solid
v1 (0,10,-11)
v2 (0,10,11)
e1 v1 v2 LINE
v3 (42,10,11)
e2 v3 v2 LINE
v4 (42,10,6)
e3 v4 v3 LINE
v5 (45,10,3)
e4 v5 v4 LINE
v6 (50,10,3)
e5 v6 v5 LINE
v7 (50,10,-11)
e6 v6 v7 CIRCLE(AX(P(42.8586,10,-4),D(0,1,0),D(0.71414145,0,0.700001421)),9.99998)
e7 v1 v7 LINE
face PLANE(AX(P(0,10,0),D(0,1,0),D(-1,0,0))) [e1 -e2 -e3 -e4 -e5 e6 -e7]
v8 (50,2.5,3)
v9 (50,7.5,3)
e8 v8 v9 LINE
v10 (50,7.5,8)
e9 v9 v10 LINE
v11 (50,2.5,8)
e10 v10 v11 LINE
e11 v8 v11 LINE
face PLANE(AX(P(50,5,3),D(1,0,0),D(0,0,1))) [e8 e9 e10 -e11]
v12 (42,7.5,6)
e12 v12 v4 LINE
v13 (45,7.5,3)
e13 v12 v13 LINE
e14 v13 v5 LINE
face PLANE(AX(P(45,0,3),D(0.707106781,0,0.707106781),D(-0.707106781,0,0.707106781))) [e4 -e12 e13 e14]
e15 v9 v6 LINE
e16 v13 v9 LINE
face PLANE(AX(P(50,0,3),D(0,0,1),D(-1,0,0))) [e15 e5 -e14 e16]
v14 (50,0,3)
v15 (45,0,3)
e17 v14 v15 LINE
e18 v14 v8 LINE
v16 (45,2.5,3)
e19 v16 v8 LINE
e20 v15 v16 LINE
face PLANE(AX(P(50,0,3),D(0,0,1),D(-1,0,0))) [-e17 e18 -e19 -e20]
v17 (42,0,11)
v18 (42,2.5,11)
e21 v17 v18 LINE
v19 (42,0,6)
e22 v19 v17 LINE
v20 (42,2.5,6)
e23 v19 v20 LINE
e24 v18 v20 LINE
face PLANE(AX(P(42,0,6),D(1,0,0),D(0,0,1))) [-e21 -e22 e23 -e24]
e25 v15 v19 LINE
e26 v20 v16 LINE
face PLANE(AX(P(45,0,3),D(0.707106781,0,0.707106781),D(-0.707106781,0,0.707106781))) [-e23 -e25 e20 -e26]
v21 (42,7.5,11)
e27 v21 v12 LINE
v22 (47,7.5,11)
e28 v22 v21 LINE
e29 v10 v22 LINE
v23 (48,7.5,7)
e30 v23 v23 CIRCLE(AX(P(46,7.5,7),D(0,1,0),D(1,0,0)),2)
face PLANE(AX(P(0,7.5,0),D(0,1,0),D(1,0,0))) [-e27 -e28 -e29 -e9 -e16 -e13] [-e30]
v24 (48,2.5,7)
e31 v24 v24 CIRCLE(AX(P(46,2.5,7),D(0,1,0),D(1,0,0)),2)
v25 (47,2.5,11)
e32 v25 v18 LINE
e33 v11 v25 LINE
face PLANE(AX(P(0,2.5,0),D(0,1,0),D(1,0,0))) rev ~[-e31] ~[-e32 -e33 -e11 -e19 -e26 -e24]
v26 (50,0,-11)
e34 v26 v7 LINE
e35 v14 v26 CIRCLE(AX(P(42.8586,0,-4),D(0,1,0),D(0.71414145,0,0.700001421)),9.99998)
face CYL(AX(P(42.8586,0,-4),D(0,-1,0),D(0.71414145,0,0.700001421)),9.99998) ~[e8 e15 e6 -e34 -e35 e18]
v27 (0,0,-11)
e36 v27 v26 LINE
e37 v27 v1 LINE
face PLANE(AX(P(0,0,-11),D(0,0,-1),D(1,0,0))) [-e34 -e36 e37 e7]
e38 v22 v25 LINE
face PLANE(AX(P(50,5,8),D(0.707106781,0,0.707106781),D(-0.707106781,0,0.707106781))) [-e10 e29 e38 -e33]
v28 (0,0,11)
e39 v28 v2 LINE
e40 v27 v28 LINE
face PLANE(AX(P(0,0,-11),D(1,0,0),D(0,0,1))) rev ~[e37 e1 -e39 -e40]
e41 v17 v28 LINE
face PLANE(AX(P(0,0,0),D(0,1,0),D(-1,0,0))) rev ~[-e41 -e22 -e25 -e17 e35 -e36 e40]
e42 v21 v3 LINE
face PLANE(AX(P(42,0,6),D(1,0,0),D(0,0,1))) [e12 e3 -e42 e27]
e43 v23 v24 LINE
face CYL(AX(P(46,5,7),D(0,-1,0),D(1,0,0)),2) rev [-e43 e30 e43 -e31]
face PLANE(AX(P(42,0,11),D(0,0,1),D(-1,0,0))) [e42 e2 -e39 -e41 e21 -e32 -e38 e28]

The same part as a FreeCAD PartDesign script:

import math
import FreeCAD as App
import Part
import Sketcher
from FreeCAD import Vector
Q = App.Units.Quantity


def add_polygon(sketch, points):
    """Adds a closed chain of lines whose ends are joined by coincident constraints."""
    first, n = sketch.GeometryCount, len(points)
    for a, b in zip(points, points[1:] + points[:1]):
        sketch.addGeometry(Part.LineSegment(App.Vector(*a, 0), App.Vector(*b, 0)), False)
    for i in range(n):
        sketch.addConstraint(Sketcher.Constraint("Coincident", first + i, 2, first + (i + 1) % n, 1))

doc = App.newDocument("Part")
body = doc.addObject("PartDesign::Body", "Body")

# Sketch on XZ plane
sketch1 = body.newObject("Sketcher::SketchObject", "Sketch")
sketch1.AttachmentSupport = (doc.getObject("XZ_Plane"), [""])
sketch1.MapMode = "FlatFace"
sketch1.addGeometry(Part.LineSegment(Vector(50, -11, 0), Vector(0, -11, 0)), False)
sketch1.addGeometry(Part.LineSegment(Vector(0, -11, 0), Vector(0, 11, 0)), False)
sketch1.addGeometry(Part.LineSegment(Vector(0, 11, 0), Vector(42, 11, 0)), False)
sketch1.addGeometry(Part.LineSegment(Vector(42, 11, 0), Vector(42, 6, 0)), False)
sketch1.addGeometry(Part.LineSegment(Vector(42, 6, 0), Vector(45, 3, 0)), False)
sketch1.addGeometry(Part.LineSegment(Vector(45, 3, 0), Vector(50, 3, 0)), False)
sketch1.addGeometry(Part.ArcOfCircle(Part.Circle(Vector(42.9, -4, 0), Vector(0, 0, 1), 10), math.radians(-44), math.radians(44)), False)
sketch1.addConstraint(Sketcher.Constraint("Coincident", 0, 2, 1, 1))
sketch1.addConstraint(Sketcher.Constraint("Coincident", 1, 2, 2, 1))
sketch1.addConstraint(Sketcher.Constraint("Coincident", 2, 2, 3, 1))
sketch1.addConstraint(Sketcher.Constraint("Coincident", 3, 2, 4, 1))
sketch1.addConstraint(Sketcher.Constraint("Coincident", 4, 2, 5, 1))
sketch1.addConstraint(Sketcher.Constraint("Coincident", 5, 2, 6, 2))
sketch1.addConstraint(Sketcher.Constraint("Coincident", 6, 1, 0, 1))
sketch1.addConstraint(Sketcher.Constraint("Horizontal", 0))
sketch1.addConstraint(Sketcher.Constraint("Vertical", 1))
sketch1.addConstraint(Sketcher.Constraint("Horizontal", 2))
sketch1.addConstraint(Sketcher.Constraint("Vertical", 3))
sketch1.addConstraint(Sketcher.Constraint("Horizontal", 5))
sketch1.addConstraint(Sketcher.Constraint("Symmetric", 0, 2, 1, 2, -1, 1))
sketch1.addConstraint(Sketcher.Constraint("Vertical", 5, 2, 6, 1))
sketch1.addConstraint(Sketcher.Constraint("Equal", 5, 3))
sketch1.addConstraint(Sketcher.Constraint("Radius", 6, 10.0))
sketch1.addConstraint(Sketcher.Constraint("DistanceX", 0, 2, 0, 1, 50.0))
sketch1.addConstraint(Sketcher.Constraint("DistanceY", 1, 1, 1, 2, 22.0))
sketch1.addConstraint(Sketcher.Constraint("Angle", 4, Q("-45 deg")))
sketch1.addConstraint(Sketcher.Constraint("DistanceX", -1, 1, 4, 2, 45.0))
sketch1.addConstraint(Sketcher.Constraint("DistanceY", -1, 1, 4, 2, 3.0))
pad1 = body.newObject("PartDesign::Pad", "Pad")
pad1.Profile = sketch1
pad1.Length = 10
pad1.Reversed = True

# Sketch on XZ plane
sketch2 = body.newObject("Sketcher::SketchObject", "Sketch001")
sketch2.AttachmentSupport = (doc.getObject("XZ_Plane"), [""])
sketch2.MapMode = "FlatFace"
sketch2.AttachmentOffset = App.Placement(Vector(0, 0, -5), App.Rotation())
add_polygon(sketch2, [(50, 8), (50, 3), (45, 3), (42, 6), (42, 11), (47, 11)])  # lines 0-5
sketch2.addGeometry(Part.Circle(Vector(46, 7, 0), Vector(0, 0, 1), 2), False)  # 6
sketch2.addConstraint(Sketcher.Constraint("Vertical", 0))
sketch2.addConstraint(Sketcher.Constraint("Horizontal", 1))
sketch2.addConstraint(Sketcher.Constraint("Vertical", 3))
sketch2.addConstraint(Sketcher.Constraint("Horizontal", 4))
sketch2.addConstraint(Sketcher.Constraint("Parallel", 2, 5))
sketch2.addConstraint(Sketcher.Constraint("Equal", 1, 4))
sketch2.addConstraint(Sketcher.Constraint("Equal", 4, 0))
sketch2.addConstraint(Sketcher.Constraint("Diameter", 6, 4.0))
sketch2.addConstraint(Sketcher.Constraint("DistanceX", 6, 3, 0, 2, 4.0))
sketch2.addConstraint(Sketcher.Constraint("DistanceY", 0, 2, 6, 3, 4.0))
sketch2.addConstraint(Sketcher.Constraint("DistanceX", 2, 2, 6, 3, 4.0))
sketch2.addConstraint(Sketcher.Constraint("DistanceY", 6, 3, 3, 2, 4.0))
sketch2.addConstraint(Sketcher.Constraint("DistanceX", 1, 2, 1, 1, 5.0))
sketch2.addConstraint(Sketcher.Constraint("DistanceX", -1, 1, 6, 3, 46.0))
sketch2.addConstraint(Sketcher.Constraint("DistanceY", -1, 1, 6, 3, 7.0))
pad2 = body.newObject("PartDesign::Pad", "Pad001")
pad2.Profile = sketch2
pad2.Length = 5
pad2.Midplane = True

doc.recompute()
